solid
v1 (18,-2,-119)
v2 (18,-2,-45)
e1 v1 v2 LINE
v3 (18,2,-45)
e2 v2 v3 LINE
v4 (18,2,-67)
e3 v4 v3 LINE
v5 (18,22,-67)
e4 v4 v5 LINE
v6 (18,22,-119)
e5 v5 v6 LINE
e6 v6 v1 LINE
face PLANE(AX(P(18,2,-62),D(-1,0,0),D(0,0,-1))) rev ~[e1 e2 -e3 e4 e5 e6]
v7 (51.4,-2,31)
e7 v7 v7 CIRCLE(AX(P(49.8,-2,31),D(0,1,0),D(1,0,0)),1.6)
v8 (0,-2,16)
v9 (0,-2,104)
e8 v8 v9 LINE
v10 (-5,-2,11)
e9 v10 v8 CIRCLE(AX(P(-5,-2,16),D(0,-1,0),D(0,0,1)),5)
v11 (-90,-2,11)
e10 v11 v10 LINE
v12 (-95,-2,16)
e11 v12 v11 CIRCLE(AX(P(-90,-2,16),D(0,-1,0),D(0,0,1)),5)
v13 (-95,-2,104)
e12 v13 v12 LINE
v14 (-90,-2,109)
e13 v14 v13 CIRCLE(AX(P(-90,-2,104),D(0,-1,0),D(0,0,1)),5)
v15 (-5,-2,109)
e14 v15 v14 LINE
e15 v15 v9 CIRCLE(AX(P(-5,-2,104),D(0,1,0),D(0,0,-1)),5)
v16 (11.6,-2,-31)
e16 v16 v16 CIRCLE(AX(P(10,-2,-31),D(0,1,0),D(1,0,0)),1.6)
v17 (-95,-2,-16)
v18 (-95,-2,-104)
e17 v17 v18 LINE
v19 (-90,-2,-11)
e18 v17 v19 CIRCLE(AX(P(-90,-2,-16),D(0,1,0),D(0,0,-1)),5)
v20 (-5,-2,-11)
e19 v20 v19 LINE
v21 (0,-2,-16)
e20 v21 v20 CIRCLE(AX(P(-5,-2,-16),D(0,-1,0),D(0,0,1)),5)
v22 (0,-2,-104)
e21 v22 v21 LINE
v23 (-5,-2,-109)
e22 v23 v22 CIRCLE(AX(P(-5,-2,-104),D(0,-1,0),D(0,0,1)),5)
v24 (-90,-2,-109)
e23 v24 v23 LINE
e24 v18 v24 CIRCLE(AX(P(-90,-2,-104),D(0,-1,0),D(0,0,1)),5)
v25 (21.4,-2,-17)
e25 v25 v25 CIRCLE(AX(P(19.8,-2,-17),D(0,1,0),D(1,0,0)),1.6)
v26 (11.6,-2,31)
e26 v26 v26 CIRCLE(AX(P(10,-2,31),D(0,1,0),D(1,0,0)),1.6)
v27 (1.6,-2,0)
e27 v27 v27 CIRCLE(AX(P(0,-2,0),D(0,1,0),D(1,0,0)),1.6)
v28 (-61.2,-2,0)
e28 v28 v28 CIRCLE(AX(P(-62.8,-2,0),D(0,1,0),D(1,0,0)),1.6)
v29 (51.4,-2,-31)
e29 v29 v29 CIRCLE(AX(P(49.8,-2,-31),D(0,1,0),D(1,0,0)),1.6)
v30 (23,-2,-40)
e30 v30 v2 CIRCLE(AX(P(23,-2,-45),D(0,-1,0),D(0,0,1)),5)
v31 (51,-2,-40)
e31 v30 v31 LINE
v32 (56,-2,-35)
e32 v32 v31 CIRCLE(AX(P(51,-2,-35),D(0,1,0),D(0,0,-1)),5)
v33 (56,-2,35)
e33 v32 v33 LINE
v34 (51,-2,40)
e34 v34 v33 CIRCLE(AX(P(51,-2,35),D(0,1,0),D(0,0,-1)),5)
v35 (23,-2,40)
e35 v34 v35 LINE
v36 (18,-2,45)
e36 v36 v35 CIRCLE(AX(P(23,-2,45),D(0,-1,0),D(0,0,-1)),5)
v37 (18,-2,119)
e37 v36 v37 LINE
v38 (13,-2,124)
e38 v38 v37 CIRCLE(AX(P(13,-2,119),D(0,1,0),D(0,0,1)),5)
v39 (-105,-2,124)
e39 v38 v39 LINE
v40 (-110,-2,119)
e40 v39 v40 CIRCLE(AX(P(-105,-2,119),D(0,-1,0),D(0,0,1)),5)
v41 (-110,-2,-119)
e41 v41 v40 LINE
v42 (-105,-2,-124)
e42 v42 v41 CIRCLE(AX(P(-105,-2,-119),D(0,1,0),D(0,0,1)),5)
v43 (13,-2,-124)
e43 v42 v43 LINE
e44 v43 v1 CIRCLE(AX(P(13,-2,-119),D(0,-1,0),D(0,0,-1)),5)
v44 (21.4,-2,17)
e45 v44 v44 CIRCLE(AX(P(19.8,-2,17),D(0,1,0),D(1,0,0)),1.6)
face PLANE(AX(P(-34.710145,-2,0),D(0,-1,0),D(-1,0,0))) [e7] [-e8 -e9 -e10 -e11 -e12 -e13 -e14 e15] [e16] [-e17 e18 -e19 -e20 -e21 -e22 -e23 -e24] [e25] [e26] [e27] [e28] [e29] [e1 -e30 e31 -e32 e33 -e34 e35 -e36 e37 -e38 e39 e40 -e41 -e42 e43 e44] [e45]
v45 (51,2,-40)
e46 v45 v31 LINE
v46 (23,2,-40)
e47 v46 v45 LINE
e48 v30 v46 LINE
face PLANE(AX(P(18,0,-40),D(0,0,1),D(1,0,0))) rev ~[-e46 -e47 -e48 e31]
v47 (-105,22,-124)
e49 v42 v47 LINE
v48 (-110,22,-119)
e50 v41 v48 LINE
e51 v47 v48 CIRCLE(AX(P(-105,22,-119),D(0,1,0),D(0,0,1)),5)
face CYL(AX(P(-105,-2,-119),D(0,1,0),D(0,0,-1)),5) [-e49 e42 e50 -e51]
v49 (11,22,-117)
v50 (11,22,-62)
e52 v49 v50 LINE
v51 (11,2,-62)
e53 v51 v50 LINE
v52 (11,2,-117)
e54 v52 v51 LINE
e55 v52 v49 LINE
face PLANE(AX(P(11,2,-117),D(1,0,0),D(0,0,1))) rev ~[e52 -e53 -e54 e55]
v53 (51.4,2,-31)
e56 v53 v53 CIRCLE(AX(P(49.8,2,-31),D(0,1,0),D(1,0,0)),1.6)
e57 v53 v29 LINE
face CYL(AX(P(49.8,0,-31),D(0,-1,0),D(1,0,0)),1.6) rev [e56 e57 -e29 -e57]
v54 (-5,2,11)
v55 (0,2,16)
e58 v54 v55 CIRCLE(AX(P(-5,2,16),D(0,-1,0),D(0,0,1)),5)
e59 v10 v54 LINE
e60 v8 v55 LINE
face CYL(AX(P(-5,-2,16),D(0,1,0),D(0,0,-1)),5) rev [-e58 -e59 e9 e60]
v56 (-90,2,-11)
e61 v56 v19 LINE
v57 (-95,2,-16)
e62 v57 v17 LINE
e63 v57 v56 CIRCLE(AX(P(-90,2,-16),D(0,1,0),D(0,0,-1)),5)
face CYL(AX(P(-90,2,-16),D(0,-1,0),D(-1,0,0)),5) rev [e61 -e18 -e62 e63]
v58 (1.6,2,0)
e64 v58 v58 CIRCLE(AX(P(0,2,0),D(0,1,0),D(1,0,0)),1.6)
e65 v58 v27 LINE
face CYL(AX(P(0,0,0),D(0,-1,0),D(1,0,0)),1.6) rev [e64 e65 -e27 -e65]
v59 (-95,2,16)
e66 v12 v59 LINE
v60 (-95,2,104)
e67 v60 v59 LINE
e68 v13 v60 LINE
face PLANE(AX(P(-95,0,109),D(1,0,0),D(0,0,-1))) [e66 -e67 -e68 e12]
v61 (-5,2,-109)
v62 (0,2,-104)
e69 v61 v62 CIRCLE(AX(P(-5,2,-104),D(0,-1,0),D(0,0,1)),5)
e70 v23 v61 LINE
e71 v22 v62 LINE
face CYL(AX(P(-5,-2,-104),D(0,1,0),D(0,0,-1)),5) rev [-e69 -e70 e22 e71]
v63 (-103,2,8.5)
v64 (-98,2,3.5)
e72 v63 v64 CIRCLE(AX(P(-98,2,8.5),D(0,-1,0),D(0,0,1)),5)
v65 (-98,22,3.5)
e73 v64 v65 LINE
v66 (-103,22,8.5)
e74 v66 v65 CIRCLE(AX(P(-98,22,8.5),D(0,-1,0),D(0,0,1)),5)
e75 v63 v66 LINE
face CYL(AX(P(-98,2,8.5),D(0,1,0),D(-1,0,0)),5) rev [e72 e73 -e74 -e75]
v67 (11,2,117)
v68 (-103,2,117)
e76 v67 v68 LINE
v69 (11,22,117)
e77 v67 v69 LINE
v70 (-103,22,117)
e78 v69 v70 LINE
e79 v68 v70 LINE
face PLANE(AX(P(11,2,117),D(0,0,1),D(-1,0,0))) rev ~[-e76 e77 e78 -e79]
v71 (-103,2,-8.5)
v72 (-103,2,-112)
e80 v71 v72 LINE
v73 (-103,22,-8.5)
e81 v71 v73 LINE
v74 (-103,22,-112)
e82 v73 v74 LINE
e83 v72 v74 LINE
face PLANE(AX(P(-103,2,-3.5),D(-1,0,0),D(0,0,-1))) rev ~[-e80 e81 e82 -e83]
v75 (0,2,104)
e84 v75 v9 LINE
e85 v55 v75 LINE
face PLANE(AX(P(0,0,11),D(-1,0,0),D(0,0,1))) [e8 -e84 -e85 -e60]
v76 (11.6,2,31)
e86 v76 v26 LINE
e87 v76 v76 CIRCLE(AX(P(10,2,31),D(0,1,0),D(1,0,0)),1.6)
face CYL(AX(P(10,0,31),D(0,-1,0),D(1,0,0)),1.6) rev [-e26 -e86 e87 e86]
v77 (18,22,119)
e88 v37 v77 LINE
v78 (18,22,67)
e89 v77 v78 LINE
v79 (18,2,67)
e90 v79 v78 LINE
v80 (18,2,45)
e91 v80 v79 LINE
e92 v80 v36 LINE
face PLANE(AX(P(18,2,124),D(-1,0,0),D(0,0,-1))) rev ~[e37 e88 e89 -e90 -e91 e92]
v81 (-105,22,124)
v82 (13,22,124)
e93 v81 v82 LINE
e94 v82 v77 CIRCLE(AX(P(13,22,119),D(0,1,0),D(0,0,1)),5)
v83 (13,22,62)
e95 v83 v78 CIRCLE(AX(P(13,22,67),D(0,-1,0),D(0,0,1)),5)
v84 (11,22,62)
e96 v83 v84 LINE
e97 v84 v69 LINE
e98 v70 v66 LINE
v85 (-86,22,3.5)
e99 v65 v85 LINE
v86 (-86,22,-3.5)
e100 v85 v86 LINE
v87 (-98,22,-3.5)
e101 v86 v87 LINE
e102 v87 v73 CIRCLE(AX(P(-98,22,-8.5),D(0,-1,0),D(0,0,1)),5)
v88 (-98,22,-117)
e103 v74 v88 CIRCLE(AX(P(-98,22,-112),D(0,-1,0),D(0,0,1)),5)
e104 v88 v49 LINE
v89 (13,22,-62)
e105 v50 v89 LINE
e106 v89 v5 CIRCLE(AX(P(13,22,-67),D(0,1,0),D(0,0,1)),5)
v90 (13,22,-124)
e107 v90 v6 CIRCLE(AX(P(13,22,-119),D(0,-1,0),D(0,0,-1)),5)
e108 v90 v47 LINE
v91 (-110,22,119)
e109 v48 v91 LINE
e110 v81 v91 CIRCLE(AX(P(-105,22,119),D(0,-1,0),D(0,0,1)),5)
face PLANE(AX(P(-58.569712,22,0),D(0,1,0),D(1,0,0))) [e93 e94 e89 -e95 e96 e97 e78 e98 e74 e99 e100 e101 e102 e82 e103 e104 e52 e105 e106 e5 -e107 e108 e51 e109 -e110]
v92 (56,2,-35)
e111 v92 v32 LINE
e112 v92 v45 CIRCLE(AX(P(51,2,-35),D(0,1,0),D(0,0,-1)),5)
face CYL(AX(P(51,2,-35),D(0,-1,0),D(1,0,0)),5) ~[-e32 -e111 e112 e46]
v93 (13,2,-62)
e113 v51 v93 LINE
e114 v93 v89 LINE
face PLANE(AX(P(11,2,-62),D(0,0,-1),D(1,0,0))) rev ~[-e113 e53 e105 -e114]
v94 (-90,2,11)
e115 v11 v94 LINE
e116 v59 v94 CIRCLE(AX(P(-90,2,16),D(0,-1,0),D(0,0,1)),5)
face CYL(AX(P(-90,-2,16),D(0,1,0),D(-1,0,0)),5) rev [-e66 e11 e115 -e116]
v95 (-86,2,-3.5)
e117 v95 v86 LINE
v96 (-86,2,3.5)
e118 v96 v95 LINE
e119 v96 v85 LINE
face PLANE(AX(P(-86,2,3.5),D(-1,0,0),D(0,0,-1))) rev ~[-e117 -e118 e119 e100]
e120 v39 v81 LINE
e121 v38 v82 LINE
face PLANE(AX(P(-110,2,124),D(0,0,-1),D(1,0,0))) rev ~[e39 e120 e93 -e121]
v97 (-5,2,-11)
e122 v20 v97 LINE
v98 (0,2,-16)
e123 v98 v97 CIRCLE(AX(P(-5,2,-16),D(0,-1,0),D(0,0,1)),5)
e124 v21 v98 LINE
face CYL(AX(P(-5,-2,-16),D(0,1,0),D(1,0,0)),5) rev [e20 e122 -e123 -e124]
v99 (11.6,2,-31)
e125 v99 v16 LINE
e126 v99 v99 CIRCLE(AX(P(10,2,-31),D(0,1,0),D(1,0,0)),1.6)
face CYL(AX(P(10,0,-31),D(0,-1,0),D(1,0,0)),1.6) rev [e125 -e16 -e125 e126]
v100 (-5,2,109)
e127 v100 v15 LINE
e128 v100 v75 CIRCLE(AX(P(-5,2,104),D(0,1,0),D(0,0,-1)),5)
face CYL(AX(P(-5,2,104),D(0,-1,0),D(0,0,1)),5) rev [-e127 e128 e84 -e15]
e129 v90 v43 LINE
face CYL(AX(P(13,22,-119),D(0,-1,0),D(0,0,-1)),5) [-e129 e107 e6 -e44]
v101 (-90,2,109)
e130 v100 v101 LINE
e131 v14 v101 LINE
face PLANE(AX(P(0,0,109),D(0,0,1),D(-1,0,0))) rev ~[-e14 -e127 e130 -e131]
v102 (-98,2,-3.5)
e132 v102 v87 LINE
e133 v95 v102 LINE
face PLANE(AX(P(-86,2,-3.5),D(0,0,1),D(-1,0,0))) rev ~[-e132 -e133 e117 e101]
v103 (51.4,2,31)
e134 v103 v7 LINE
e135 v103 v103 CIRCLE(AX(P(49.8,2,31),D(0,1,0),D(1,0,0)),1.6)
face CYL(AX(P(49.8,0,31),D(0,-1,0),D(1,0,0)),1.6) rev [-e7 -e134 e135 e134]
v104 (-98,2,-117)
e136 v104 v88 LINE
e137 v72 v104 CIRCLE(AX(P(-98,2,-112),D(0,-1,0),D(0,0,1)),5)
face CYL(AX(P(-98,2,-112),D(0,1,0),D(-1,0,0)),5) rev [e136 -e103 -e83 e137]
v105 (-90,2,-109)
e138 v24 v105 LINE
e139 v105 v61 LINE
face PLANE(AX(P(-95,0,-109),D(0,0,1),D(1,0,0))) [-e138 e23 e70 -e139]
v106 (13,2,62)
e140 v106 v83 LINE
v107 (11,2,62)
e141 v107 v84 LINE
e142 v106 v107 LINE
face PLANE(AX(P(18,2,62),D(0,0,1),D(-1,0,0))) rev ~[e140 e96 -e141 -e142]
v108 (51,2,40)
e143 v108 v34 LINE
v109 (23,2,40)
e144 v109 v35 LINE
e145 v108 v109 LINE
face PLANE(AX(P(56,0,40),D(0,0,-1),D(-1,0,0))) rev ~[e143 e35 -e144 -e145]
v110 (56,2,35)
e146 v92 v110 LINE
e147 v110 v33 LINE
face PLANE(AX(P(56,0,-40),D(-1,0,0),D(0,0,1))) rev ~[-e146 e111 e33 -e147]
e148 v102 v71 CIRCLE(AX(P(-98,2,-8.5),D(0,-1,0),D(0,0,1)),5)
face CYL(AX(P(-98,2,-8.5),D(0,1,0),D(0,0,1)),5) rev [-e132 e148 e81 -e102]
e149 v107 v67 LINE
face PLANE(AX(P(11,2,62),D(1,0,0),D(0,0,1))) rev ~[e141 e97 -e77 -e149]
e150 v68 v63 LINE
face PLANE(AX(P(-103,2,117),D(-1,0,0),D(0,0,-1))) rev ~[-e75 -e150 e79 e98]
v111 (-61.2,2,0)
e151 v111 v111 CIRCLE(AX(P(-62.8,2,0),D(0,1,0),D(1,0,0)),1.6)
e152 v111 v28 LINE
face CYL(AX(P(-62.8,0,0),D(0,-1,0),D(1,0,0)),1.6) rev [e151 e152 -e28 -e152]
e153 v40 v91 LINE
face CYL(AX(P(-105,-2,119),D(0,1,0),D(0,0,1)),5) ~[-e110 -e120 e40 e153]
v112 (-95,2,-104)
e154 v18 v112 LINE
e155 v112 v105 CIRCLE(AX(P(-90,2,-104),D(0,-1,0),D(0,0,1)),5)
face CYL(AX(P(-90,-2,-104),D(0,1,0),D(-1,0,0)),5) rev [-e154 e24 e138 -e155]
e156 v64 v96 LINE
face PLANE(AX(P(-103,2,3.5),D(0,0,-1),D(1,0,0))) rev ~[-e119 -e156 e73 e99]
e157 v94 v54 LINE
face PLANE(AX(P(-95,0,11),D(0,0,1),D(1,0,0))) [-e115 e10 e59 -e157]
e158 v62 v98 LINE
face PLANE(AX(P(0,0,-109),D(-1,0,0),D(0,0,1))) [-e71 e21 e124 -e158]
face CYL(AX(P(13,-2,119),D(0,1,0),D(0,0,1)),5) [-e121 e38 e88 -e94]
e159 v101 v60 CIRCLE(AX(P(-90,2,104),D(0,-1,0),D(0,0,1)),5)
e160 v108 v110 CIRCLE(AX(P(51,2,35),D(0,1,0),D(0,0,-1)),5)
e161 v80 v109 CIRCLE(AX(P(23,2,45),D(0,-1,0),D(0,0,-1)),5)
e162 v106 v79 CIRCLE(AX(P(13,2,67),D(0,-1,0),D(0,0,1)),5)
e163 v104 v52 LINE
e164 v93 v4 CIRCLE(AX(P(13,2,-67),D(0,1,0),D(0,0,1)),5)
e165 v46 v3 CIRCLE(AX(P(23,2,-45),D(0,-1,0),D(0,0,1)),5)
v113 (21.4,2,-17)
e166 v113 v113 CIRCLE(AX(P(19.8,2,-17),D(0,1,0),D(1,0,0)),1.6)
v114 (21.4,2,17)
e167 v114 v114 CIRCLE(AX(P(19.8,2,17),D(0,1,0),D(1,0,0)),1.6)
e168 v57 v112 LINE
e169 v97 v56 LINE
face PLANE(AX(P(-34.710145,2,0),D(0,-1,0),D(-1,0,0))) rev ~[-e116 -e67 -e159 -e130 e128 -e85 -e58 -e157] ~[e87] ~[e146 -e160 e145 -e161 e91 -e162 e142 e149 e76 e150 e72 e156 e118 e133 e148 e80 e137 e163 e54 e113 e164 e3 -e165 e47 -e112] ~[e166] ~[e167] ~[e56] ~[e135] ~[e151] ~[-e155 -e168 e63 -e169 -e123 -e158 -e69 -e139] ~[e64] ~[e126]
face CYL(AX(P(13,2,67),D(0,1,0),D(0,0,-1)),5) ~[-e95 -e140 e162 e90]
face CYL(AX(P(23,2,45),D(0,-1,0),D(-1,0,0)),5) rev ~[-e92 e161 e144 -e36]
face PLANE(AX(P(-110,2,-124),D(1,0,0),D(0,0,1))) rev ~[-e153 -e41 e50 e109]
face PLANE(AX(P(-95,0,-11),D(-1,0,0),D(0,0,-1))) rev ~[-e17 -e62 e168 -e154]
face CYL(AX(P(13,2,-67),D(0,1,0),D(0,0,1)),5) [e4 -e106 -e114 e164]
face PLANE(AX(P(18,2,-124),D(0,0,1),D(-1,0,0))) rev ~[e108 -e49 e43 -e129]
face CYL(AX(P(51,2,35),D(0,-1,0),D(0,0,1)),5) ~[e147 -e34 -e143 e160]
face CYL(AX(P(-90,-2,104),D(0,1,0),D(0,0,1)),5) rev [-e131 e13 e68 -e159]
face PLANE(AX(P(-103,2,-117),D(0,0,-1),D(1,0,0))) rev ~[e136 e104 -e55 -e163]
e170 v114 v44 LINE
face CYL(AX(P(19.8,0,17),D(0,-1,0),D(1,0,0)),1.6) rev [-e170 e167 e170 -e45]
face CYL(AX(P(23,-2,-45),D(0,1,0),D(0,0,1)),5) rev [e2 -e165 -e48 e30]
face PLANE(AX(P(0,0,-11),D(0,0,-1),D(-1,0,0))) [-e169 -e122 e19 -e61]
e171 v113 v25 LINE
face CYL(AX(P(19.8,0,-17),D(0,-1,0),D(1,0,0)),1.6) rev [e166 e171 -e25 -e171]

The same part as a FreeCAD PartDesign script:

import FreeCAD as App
import Part
import Sketcher
from FreeCAD import Vector
Q = App.Units.Quantity


def edges_at(feature, points):
    """Names of the edges that pass closest to the given points."""
    edges = feature.Shape.Edges
    near = lambda p: min(range(len(edges)), key=lambda i: edges[i].distToShape(Part.Vertex(*p))[0])
    return sorted({f"Edge{near(p) + 1}" for p in points})


def add_polygon(sketch, points):
    """Adds a closed chain of lines whose ends are joined by coincident constraints."""
    first, n = sketch.GeometryCount, len(points)
    for a, b in zip(points, points[1:] + points[:1]):
        sketch.addGeometry(Part.LineSegment(App.Vector(*a, 0), App.Vector(*b, 0)), False)
    for i in range(n):
        sketch.addConstraint(Sketcher.Constraint("Coincident", first + i, 2, first + (i + 1) % n, 1))

doc = App.newDocument("Part")
params = doc.addObject("Spreadsheet::Sheet", "Params")
for row, (alias, value) in enumerate([
    ("sketch1_diameter", "3.2 mm"),
    ("sketch1_width", "38 mm"),
    ("sketch1_width2", "128 mm"),
    ("sketch1_width3", "95 mm"),
    ("sketch1_height", "84 mm"),
    ("pad1_length", "4 mm"),
    ("sketch2_width", "128 mm"),
    ("sketch2_width2", "7 mm"),
    ("sketch2_width3", "114 mm"),
    ("sketch2_width4", "17 mm"),
    ("sketch2_height", "248 mm"),
    ("pad2_length", "20 mm"),
    ("fillet_radius", "5 mm"),
], start=1):
    params.set(f"A{row}", alias)
    params.set(f"B{row}", "=" + value)
    params.setAlias(f"B{row}", alias)

body = doc.addObject("PartDesign::Body", "Body")

sketch1 = body.newObject("Sketcher::SketchObject", "Sketch")
sketch1.AttachmentSupport = (doc.getObject("XZ_Plane"), [""])
sketch1.MapMode = "FlatFace"
add_polygon(sketch1, [(56, -40), (18, -40), (18, -124), (-110, -124), (-110, 124), (18, 124), (18, 40), (56, 40)])
sketch1.addGeometry(Part.Circle(Vector(49.8, 31, 0), Vector(0, 0, 1), 1.6), False)
sketch1.addGeometry(Part.Circle(Vector(19.8, 17, 0), Vector(0, 0, 1), 1.6), False)
sketch1.addGeometry(Part.Circle(Vector(10, 31, 0), Vector(0, 0, 1), 1.6), False)
add_polygon(sketch1, [(0, 11), (0, 109), (-95, 109), (-95, 11)])
sketch1.addGeometry(Part.Circle(Vector(19.8, -17, 0), Vector(0, 0, 1), 1.6), False)
sketch1.addGeometry(Part.Circle(Vector(49.8, -31, 0), Vector(0, 0, 1), 1.6), False)
sketch1.addGeometry(Part.Circle(Vector(0, 0, 0), Vector(0, 0, 1), 1.6), False)
sketch1.addGeometry(Part.Circle(Vector(10, -31, 0), Vector(0, 0, 1), 1.6), False)
sketch1.addGeometry(Part.Circle(Vector(-62.8, 0, 0), Vector(0, 0, 1), 1.6), False)
add_polygon(sketch1, [(0, -11), (-95, -11), (-95, -109), (0, -109)])
sketch1.addConstraint(Sketcher.Constraint("Horizontal", 0))
sketch1.addConstraint(Sketcher.Constraint("Vertical", 1))
sketch1.addConstraint(Sketcher.Constraint("Horizontal", 2))
sketch1.addConstraint(Sketcher.Constraint("Vertical", 3))
sketch1.addConstraint(Sketcher.Constraint("Horizontal", 4))
sketch1.addConstraint(Sketcher.Constraint("Vertical", 5))
sketch1.addConstraint(Sketcher.Constraint("Horizontal", 6))
sketch1.addConstraint(Sketcher.Constraint("Vertical", 7))
sketch1.addConstraint(Sketcher.Constraint("Vertical", 11))
sketch1.addConstraint(Sketcher.Constraint("Horizontal", 12))
sketch1.addConstraint(Sketcher.Constraint("Vertical", 13))
sketch1.addConstraint(Sketcher.Constraint("Horizontal", 14))
sketch1.addConstraint(Sketcher.Constraint("Horizontal", 20))
sketch1.addConstraint(Sketcher.Constraint("Vertical", 21))
sketch1.addConstraint(Sketcher.Constraint("Horizontal", 22))
sketch1.addConstraint(Sketcher.Constraint("Vertical", 23))
sketch1.addConstraint(Sketcher.Constraint("Coincident", 17, 3, -1, 1))
sketch1.addConstraint(Sketcher.Constraint("Equal", 8, 9))
sketch1.addConstraint(Sketcher.Constraint("Equal", 9, 10))
sketch1.addConstraint(Sketcher.Constraint("Equal", 10, 15))
sketch1.addConstraint(Sketcher.Constraint("Equal", 15, 16))
sketch1.addConstraint(Sketcher.Constraint("Equal", 16, 17))
sketch1.addConstraint(Sketcher.Constraint("Equal", 17, 18))
sketch1.addConstraint(Sketcher.Constraint("Equal", 18, 19))
sketch1.addConstraint(Sketcher.Constraint("Symmetric", 11, 2, 22, 2, -1, 1))
sketch1.addConstraint(Sketcher.Constraint("Symmetric", 9, 3, 15, 3, -1))
sketch1.addConstraint(Sketcher.Constraint("Symmetric", 8, 3, 16, 3, -1))
sketch1.addConstraint(Sketcher.Constraint("Symmetric", 10, 3, 18, 3, -1))
sketch1.addConstraint(Sketcher.Constraint("Symmetric", 1, 2, 4, 2, -1))
sketch1.addConstraint(Sketcher.Constraint("Symmetric", 13, 2, 20, 2, -1))
sketch1.addConstraint(Sketcher.Constraint("PointOnObject", 19, 3, -1))
sketch1.addConstraint(Sketcher.Constraint("PointOnObject", 11, 2, -2))
sketch1.addConstraint(Sketcher.Constraint("Horizontal", 8, 3, 10, 3))
sketch1.addConstraint(Sketcher.Constraint("Equal", 1, 5))
sketch1.addConstraint(Sketcher.Constraint("Diameter", 8, Q("3.2 mm")))
sketch1.addConstraint(Sketcher.Constraint("DistanceX", 0, 2, 0, 1, Q("38 mm")))
sketch1.addConstraint(Sketcher.Constraint("DistanceX", 2, 2, 2, 1, Q("128 mm")))
sketch1.addConstraint(Sketcher.Constraint("DistanceX", 12, 2, 12, 1, Q("95 mm")))
sketch1.addConstraint(Sketcher.Constraint("DistanceY", 1, 2, 1, 1, Q("84 mm")))
sketch1.addConstraint(Sketcher.Constraint("DistanceY", 3, 1, 3, 2, Q("248 mm")))
sketch1.addConstraint(Sketcher.Constraint("DistanceY", 11, 1, 11, 2, Q("98 mm")))
sketch1.addConstraint(Sketcher.Constraint("DistanceY", -1, 1, 8, 3, Q("31 mm")))
sketch1.addConstraint(Sketcher.Constraint("DistanceY", -1, 1, 9, 3, Q("17 mm")))
sketch1.addConstraint(Sketcher.Constraint("DistanceX", -1, 1, 10, 3, Q("10 mm")))
sketch1.addConstraint(Sketcher.Constraint("DistanceX", -1, 1, 0, 2, Q("18 mm")))
sketch1.addConstraint(Sketcher.Constraint("DistanceY", -1, 1, 11, 2, Q("109 mm")))
sketch1.addConstraint(Sketcher.Constraint("DistanceX", 9, 3, 8, 3, Q("30 mm")))
sketch1.addConstraint(Sketcher.Constraint("DistanceX", -1, 1, 8, 3, Q("49.8 mm")))
sketch1.addConstraint(Sketcher.Constraint("DistanceX", 19, 3, -1, 1, Q("62.8 mm")))
sketch1.setExpression("Constraints[50]", "Params.sketch1_diameter")
sketch1.setExpression("Constraints[51]", "Params.sketch1_width")
sketch1.setExpression("Constraints[52]", "Params.sketch1_width2")
sketch1.setExpression("Constraints[53]", "Params.sketch1_width3")
sketch1.setExpression("Constraints[54]", "Params.sketch1_height")
pad1 = body.newObject("PartDesign::Pad", "Pad")
pad1.Profile = sketch1
pad1.setExpression("Length", "Params.pad1_length")
pad1.Midplane = True

sketch2 = body.newObject("Sketcher::SketchObject", "Sketch001")
sketch2.AttachmentSupport = (doc.getObject("XZ_Plane"), [""])
sketch2.MapMode = "FlatFace"
sketch2.AttachmentOffset = App.Placement(Vector(0, 0, -2), App.Rotation())
add_polygon(sketch2, [(18, -124), (-110, -124), (-110, 124), (18, 124), (18, 62), (11, 62), (11, 117), (-103, 117), (-103, 4), (-86, 4), (-86, -4), (-103, -4), (-103, -117), (11, -117), (11, -62), (18, -62)])
sketch2.addConstraint(Sketcher.Constraint("Horizontal", 0))
sketch2.addConstraint(Sketcher.Constraint("Vertical", 1))
sketch2.addConstraint(Sketcher.Constraint("Horizontal", 2))
sketch2.addConstraint(Sketcher.Constraint("Vertical", 3))
sketch2.addConstraint(Sketcher.Constraint("Horizontal", 4))
sketch2.addConstraint(Sketcher.Constraint("Vertical", 5))
sketch2.addConstraint(Sketcher.Constraint("Horizontal", 6))
sketch2.addConstraint(Sketcher.Constraint("Vertical", 7))
sketch2.addConstraint(Sketcher.Constraint("Horizontal", 8))
sketch2.addConstraint(Sketcher.Constraint("Vertical", 9))
sketch2.addConstraint(Sketcher.Constraint("Horizontal", 10))
sketch2.addConstraint(Sketcher.Constraint("Vertical", 11))
sketch2.addConstraint(Sketcher.Constraint("Horizontal", 12))
sketch2.addConstraint(Sketcher.Constraint("Vertical", 13))
sketch2.addConstraint(Sketcher.Constraint("Horizontal", 14))
sketch2.addConstraint(Sketcher.Constraint("Vertical", 15))
sketch2.addConstraint(Sketcher.Constraint("Symmetric", 7, 2, 10, 2, -1))
sketch2.addConstraint(Sketcher.Constraint("Symmetric", 5, 2, 12, 2, -1))
sketch2.addConstraint(Sketcher.Constraint("Symmetric", 3, 2, 14, 2, -1))
sketch2.addConstraint(Sketcher.Constraint("Equal", 14, 9))
sketch2.addConstraint(Sketcher.Constraint("Equal", 3, 15))
sketch2.addConstraint(Sketcher.Constraint("DistanceX", 0, 2, 0, 1, Q("128 mm")))
sketch2.addConstraint(Sketcher.Constraint("DistanceX", 4, 2, 4, 1, Q("7 mm")))
sketch2.addConstraint(Sketcher.Constraint("DistanceX", 6, 2, 6, 1, Q("114 mm")))
sketch2.addConstraint(Sketcher.Constraint("DistanceX", 8, 1, 8, 2, Q("17 mm")))
sketch2.addConstraint(Sketcher.Constraint("DistanceY", 1, 1, 1, 2, Q("248 mm")))
sketch2.addConstraint(Sketcher.Constraint("DistanceY", 3, 2, 3, 1, Q("62 mm")))
sketch2.addConstraint(Sketcher.Constraint("DistanceY", 5, 1, 5, 2, Q("55 mm")))
sketch2.addConstraint(Sketcher.Constraint("DistanceX", 0, 2, -1, 1, Q("110 mm")))
sketch2.setExpression("Constraints[37]", "Params.sketch2_width")
sketch2.setExpression("Constraints[38]", "Params.sketch2_width2")
sketch2.setExpression("Constraints[39]", "Params.sketch2_width3")
sketch2.setExpression("Constraints[40]", "Params.sketch2_width4")
sketch2.setExpression("Constraints[41]", "Params.sketch2_height")
pad2 = body.newObject("PartDesign::Pad", "Pad001")
pad2.Profile = sketch2
pad2.setExpression("Length", "Params.pad2_length")
pad2.Reversed = True
doc.recompute()

fillet = body.newObject("PartDesign::Fillet", "Fillet")
fillet.Base = (pad2, edges_at(pad2, [
    (18, 12, 62),
    (-103, 12, 3.5),
    (-103, 12, -3.5),
    (-103, 12, -117),
    (18, 12, -62),
    (18, 0, 40),
    (18, 10, 124),
    (-110, 10, 124),
    (-110, 10, -124),
    (18, 10, -124),
    (18, 0, -40),
    (56, 0, -40),
    (56, 0, 40),
    (0, 0, -11),
    (0, 0, -109),
    (-95, 0, -109),
    (-95, 0, -11),
    (0, 0, 11),
    (-95, 0, 11),
    (-95, 0, 109),
    (0, 0, 109),
]))
fillet.setExpression("Radius", "Params.fillet_radius")

doc.recompute()
